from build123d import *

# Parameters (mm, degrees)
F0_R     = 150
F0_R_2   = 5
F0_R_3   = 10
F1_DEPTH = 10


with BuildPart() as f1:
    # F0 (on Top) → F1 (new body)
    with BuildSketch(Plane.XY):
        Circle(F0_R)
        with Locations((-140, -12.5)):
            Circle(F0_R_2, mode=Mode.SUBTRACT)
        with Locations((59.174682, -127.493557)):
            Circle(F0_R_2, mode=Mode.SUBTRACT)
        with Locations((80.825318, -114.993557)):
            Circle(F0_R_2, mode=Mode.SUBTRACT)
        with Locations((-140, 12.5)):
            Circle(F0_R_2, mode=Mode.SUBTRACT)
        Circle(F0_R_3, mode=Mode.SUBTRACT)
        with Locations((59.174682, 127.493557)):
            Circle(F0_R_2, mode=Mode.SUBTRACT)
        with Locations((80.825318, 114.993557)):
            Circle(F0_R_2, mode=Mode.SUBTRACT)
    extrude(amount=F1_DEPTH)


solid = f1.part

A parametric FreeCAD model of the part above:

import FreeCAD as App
import Part
import Sketcher

V = App.Vector

doc = App.newDocument("Part")
body = doc.addObject("PartDesign::Body", "Body")

# Sketch on XY plane
sketch1 = body.newObject("Sketcher::SketchObject", "Sketch")
sketch1.AttachmentSupport = (doc.getObject("XY_Plane"), [""])
sketch1.MapMode = "FlatFace"
sketch1.addGeometry([
    Part.Circle(V(0, 0, 0), V(0, 0, 1), 150),  # 0
    Part.Circle(V(-140, -12, 0), V(0, 0, 1), 5),  # 1
    Part.Circle(V(59, -127, 0), V(0, 0, 1), 5),  # 2
    Part.Circle(V(81, -115, 0), V(0, 0, 1), 5),  # 3
    Part.Circle(V(-140, 12, 0), V(0, 0, 1), 5),  # 4
    Part.Circle(V(0, 0, 0), V(0, 0, 1), 10),  # 5
    Part.Circle(V(81, 115, 0), V(0, 0, 1), 5),  # 6
    Part.Circle(V(59, 127, 0), V(0, 0, 1), 5),  # 7
], False)
sketch1.addConstraint([
    Sketcher.Constraint("Coincident", 0, 3, -1, 1),
    Sketcher.Constraint("Coincident", 5, 3, -1, 1),
    Sketcher.Constraint("Equal", 1, 2),
    Sketcher.Constraint("Equal", 2, 3),
    Sketcher.Constraint("Equal", 3, 4),
    Sketcher.Constraint("Equal", 4, 6),
    Sketcher.Constraint("Equal", 6, 7),
    Sketcher.Constraint("Symmetric", 1, 3, 4, 3, -1),
    Sketcher.Constraint("Symmetric", 3, 3, 6, 3, -1),
    Sketcher.Constraint("Symmetric", 2, 3, 7, 3, -1),
    Sketcher.Constraint("Diameter", 0, 300.0),
    Sketcher.Constraint("Diameter", 1, 10.0),
    Sketcher.Constraint("Diameter", 5, 20.0),
    Sketcher.Constraint("DistanceX", 1, 3, -1, 1, 140.0),
    Sketcher.Constraint("DistanceY", 1, 3, 4, 3, 25.0),
    Sketcher.Constraint("DistanceY", 2, 3, 3, 3, 12.5),
    Sketcher.Constraint("DistanceX", -1, 1, 2, 3, 59.174682),
    Sketcher.Constraint("DistanceY", 2, 3, -1, 1, 127.493557),
    Sketcher.Constraint("DistanceX", -1, 1, 3, 3, 80.825318),
])
pad1 = body.newObject("PartDesign::Pad", "Pad")
pad1.Profile = sketch1
pad1.Length = 10

doc.recompute()
